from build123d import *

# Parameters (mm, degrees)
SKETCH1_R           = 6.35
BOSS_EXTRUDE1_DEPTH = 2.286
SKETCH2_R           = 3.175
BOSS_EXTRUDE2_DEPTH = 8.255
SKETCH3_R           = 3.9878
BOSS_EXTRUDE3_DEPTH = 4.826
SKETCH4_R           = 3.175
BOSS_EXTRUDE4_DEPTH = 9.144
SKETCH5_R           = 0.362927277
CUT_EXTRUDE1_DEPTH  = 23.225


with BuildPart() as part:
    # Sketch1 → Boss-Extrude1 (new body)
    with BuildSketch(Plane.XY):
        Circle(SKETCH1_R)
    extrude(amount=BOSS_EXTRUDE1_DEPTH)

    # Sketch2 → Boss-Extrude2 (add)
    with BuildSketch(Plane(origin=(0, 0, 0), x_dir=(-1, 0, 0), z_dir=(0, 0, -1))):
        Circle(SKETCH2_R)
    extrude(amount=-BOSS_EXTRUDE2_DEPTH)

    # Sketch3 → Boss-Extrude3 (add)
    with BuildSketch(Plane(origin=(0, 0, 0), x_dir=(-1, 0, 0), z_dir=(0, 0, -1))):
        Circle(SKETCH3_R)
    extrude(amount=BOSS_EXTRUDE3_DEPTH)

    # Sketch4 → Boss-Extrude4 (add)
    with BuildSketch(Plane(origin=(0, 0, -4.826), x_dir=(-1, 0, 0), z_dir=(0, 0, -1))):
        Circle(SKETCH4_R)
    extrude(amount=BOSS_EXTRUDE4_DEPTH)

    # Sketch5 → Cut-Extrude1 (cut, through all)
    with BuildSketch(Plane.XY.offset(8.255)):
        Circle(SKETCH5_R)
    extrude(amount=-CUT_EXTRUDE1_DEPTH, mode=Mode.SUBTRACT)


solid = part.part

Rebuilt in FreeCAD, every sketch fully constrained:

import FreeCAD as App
import Part
import Sketcher

V = App.Vector
Q = App.Units.Quantity

doc = App.newDocument("Part")
body = doc.addObject("PartDesign::Body", "Body")

# Sketch on XY plane
sketch1 = body.newObject("Sketcher::SketchObject", "Sketch")
sketch1.AttachmentSupport = (doc.getObject("XY_Plane"), [""])
sketch1.MapMode = "FlatFace"
sketch1.addGeometry(Part.Circle(V(0, 0, 0), V(0, 0, 1), 6.35), False)
sketch1.addConstraint(Sketcher.Constraint("Coincident", 0, 3, -1, 1))
sketch1.addConstraint(Sketcher.Constraint("Diameter", 0, Q("0.5 in")))
pad1 = body.newObject("PartDesign::Pad", "Pad")
pad1.Profile = sketch1
pad1.Length = Q("0.09 in")

# Sketch on XY plane
sketch2 = body.newObject("Sketcher::SketchObject", "Sketch001")
sketch2.AttachmentSupport = (doc.getObject("XY_Plane"), [""])
sketch2.MapMode = "FlatFace"
sketch2.addGeometry(Part.Circle(V(0, 0, 0), V(0, 0, 1), 3.175), False)
sketch2.addConstraint(Sketcher.Constraint("Coincident", 0, 3, -1, 1))
sketch2.addConstraint(Sketcher.Constraint("Diameter", 0, Q("0.25 in")))
pad2 = body.newObject("PartDesign::Pad", "Pad001")
pad2.Profile = sketch2
pad2.Length = Q("0.325 in")

# Sketch on XY plane
sketch3 = body.newObject("Sketcher::SketchObject", "Sketch002")
sketch3.AttachmentSupport = (doc.getObject("XY_Plane"), [""])
sketch3.MapMode = "FlatFace"
sketch3.addGeometry(Part.Circle(V(0, 0, 0), V(0, 0, 1), 3.9878), False)
sketch3.addConstraint(Sketcher.Constraint("Coincident", 0, 3, -1, 1))
sketch3.addConstraint(Sketcher.Constraint("Diameter", 0, Q("0.314 in")))
pad3 = body.newObject("PartDesign::Pad", "Pad002")
pad3.Profile = sketch3
pad3.Length = Q("0.19 in")
pad3.Reversed = True

# Sketch on XY plane
sketch4 = body.newObject("Sketcher::SketchObject", "Sketch003")
sketch4.AttachmentSupport = (doc.getObject("XY_Plane"), [""])
sketch4.MapMode = "FlatFace"
sketch4.AttachmentOffset = App.Placement(V(0, 0, -0.19 * 25.4), App.Rotation())
sketch4.addGeometry(Part.Circle(V(0, 0, 0), V(0, 0, 1), 3.175), False)
sketch4.addConstraint(Sketcher.Constraint("Coincident", 0, 3, -1, 1))
sketch4.addConstraint(Sketcher.Constraint("Diameter", 0, Q("0.25 in")))
pad4 = body.newObject("PartDesign::Pad", "Pad003")
pad4.Profile = sketch4
pad4.Length = Q("0.36 in")
pad4.Reversed = True

# Sketch on XY plane
sketch5 = body.newObject("Sketcher::SketchObject", "Sketch004")
sketch5.AttachmentSupport = (doc.getObject("XY_Plane"), [""])
sketch5.MapMode = "FlatFace"
sketch5.AttachmentOffset = App.Placement(V(0, 0, 0.325 * 25.4), App.Rotation())
sketch5.addGeometry(Part.Circle(V(0, 0, 0), V(0, 0, 1), 0.362927), False)
sketch5.addConstraint(Sketcher.Constraint("Coincident", 0, 3, -1, 1))
sketch5.addConstraint(Sketcher.Constraint("Diameter", 0, Q("0.725855 mm")))
pocket1 = body.newObject("PartDesign::Pocket", "Pocket")
pocket1.Profile = sketch5
pocket1.Type = "ThroughAll"

doc.recompute()
